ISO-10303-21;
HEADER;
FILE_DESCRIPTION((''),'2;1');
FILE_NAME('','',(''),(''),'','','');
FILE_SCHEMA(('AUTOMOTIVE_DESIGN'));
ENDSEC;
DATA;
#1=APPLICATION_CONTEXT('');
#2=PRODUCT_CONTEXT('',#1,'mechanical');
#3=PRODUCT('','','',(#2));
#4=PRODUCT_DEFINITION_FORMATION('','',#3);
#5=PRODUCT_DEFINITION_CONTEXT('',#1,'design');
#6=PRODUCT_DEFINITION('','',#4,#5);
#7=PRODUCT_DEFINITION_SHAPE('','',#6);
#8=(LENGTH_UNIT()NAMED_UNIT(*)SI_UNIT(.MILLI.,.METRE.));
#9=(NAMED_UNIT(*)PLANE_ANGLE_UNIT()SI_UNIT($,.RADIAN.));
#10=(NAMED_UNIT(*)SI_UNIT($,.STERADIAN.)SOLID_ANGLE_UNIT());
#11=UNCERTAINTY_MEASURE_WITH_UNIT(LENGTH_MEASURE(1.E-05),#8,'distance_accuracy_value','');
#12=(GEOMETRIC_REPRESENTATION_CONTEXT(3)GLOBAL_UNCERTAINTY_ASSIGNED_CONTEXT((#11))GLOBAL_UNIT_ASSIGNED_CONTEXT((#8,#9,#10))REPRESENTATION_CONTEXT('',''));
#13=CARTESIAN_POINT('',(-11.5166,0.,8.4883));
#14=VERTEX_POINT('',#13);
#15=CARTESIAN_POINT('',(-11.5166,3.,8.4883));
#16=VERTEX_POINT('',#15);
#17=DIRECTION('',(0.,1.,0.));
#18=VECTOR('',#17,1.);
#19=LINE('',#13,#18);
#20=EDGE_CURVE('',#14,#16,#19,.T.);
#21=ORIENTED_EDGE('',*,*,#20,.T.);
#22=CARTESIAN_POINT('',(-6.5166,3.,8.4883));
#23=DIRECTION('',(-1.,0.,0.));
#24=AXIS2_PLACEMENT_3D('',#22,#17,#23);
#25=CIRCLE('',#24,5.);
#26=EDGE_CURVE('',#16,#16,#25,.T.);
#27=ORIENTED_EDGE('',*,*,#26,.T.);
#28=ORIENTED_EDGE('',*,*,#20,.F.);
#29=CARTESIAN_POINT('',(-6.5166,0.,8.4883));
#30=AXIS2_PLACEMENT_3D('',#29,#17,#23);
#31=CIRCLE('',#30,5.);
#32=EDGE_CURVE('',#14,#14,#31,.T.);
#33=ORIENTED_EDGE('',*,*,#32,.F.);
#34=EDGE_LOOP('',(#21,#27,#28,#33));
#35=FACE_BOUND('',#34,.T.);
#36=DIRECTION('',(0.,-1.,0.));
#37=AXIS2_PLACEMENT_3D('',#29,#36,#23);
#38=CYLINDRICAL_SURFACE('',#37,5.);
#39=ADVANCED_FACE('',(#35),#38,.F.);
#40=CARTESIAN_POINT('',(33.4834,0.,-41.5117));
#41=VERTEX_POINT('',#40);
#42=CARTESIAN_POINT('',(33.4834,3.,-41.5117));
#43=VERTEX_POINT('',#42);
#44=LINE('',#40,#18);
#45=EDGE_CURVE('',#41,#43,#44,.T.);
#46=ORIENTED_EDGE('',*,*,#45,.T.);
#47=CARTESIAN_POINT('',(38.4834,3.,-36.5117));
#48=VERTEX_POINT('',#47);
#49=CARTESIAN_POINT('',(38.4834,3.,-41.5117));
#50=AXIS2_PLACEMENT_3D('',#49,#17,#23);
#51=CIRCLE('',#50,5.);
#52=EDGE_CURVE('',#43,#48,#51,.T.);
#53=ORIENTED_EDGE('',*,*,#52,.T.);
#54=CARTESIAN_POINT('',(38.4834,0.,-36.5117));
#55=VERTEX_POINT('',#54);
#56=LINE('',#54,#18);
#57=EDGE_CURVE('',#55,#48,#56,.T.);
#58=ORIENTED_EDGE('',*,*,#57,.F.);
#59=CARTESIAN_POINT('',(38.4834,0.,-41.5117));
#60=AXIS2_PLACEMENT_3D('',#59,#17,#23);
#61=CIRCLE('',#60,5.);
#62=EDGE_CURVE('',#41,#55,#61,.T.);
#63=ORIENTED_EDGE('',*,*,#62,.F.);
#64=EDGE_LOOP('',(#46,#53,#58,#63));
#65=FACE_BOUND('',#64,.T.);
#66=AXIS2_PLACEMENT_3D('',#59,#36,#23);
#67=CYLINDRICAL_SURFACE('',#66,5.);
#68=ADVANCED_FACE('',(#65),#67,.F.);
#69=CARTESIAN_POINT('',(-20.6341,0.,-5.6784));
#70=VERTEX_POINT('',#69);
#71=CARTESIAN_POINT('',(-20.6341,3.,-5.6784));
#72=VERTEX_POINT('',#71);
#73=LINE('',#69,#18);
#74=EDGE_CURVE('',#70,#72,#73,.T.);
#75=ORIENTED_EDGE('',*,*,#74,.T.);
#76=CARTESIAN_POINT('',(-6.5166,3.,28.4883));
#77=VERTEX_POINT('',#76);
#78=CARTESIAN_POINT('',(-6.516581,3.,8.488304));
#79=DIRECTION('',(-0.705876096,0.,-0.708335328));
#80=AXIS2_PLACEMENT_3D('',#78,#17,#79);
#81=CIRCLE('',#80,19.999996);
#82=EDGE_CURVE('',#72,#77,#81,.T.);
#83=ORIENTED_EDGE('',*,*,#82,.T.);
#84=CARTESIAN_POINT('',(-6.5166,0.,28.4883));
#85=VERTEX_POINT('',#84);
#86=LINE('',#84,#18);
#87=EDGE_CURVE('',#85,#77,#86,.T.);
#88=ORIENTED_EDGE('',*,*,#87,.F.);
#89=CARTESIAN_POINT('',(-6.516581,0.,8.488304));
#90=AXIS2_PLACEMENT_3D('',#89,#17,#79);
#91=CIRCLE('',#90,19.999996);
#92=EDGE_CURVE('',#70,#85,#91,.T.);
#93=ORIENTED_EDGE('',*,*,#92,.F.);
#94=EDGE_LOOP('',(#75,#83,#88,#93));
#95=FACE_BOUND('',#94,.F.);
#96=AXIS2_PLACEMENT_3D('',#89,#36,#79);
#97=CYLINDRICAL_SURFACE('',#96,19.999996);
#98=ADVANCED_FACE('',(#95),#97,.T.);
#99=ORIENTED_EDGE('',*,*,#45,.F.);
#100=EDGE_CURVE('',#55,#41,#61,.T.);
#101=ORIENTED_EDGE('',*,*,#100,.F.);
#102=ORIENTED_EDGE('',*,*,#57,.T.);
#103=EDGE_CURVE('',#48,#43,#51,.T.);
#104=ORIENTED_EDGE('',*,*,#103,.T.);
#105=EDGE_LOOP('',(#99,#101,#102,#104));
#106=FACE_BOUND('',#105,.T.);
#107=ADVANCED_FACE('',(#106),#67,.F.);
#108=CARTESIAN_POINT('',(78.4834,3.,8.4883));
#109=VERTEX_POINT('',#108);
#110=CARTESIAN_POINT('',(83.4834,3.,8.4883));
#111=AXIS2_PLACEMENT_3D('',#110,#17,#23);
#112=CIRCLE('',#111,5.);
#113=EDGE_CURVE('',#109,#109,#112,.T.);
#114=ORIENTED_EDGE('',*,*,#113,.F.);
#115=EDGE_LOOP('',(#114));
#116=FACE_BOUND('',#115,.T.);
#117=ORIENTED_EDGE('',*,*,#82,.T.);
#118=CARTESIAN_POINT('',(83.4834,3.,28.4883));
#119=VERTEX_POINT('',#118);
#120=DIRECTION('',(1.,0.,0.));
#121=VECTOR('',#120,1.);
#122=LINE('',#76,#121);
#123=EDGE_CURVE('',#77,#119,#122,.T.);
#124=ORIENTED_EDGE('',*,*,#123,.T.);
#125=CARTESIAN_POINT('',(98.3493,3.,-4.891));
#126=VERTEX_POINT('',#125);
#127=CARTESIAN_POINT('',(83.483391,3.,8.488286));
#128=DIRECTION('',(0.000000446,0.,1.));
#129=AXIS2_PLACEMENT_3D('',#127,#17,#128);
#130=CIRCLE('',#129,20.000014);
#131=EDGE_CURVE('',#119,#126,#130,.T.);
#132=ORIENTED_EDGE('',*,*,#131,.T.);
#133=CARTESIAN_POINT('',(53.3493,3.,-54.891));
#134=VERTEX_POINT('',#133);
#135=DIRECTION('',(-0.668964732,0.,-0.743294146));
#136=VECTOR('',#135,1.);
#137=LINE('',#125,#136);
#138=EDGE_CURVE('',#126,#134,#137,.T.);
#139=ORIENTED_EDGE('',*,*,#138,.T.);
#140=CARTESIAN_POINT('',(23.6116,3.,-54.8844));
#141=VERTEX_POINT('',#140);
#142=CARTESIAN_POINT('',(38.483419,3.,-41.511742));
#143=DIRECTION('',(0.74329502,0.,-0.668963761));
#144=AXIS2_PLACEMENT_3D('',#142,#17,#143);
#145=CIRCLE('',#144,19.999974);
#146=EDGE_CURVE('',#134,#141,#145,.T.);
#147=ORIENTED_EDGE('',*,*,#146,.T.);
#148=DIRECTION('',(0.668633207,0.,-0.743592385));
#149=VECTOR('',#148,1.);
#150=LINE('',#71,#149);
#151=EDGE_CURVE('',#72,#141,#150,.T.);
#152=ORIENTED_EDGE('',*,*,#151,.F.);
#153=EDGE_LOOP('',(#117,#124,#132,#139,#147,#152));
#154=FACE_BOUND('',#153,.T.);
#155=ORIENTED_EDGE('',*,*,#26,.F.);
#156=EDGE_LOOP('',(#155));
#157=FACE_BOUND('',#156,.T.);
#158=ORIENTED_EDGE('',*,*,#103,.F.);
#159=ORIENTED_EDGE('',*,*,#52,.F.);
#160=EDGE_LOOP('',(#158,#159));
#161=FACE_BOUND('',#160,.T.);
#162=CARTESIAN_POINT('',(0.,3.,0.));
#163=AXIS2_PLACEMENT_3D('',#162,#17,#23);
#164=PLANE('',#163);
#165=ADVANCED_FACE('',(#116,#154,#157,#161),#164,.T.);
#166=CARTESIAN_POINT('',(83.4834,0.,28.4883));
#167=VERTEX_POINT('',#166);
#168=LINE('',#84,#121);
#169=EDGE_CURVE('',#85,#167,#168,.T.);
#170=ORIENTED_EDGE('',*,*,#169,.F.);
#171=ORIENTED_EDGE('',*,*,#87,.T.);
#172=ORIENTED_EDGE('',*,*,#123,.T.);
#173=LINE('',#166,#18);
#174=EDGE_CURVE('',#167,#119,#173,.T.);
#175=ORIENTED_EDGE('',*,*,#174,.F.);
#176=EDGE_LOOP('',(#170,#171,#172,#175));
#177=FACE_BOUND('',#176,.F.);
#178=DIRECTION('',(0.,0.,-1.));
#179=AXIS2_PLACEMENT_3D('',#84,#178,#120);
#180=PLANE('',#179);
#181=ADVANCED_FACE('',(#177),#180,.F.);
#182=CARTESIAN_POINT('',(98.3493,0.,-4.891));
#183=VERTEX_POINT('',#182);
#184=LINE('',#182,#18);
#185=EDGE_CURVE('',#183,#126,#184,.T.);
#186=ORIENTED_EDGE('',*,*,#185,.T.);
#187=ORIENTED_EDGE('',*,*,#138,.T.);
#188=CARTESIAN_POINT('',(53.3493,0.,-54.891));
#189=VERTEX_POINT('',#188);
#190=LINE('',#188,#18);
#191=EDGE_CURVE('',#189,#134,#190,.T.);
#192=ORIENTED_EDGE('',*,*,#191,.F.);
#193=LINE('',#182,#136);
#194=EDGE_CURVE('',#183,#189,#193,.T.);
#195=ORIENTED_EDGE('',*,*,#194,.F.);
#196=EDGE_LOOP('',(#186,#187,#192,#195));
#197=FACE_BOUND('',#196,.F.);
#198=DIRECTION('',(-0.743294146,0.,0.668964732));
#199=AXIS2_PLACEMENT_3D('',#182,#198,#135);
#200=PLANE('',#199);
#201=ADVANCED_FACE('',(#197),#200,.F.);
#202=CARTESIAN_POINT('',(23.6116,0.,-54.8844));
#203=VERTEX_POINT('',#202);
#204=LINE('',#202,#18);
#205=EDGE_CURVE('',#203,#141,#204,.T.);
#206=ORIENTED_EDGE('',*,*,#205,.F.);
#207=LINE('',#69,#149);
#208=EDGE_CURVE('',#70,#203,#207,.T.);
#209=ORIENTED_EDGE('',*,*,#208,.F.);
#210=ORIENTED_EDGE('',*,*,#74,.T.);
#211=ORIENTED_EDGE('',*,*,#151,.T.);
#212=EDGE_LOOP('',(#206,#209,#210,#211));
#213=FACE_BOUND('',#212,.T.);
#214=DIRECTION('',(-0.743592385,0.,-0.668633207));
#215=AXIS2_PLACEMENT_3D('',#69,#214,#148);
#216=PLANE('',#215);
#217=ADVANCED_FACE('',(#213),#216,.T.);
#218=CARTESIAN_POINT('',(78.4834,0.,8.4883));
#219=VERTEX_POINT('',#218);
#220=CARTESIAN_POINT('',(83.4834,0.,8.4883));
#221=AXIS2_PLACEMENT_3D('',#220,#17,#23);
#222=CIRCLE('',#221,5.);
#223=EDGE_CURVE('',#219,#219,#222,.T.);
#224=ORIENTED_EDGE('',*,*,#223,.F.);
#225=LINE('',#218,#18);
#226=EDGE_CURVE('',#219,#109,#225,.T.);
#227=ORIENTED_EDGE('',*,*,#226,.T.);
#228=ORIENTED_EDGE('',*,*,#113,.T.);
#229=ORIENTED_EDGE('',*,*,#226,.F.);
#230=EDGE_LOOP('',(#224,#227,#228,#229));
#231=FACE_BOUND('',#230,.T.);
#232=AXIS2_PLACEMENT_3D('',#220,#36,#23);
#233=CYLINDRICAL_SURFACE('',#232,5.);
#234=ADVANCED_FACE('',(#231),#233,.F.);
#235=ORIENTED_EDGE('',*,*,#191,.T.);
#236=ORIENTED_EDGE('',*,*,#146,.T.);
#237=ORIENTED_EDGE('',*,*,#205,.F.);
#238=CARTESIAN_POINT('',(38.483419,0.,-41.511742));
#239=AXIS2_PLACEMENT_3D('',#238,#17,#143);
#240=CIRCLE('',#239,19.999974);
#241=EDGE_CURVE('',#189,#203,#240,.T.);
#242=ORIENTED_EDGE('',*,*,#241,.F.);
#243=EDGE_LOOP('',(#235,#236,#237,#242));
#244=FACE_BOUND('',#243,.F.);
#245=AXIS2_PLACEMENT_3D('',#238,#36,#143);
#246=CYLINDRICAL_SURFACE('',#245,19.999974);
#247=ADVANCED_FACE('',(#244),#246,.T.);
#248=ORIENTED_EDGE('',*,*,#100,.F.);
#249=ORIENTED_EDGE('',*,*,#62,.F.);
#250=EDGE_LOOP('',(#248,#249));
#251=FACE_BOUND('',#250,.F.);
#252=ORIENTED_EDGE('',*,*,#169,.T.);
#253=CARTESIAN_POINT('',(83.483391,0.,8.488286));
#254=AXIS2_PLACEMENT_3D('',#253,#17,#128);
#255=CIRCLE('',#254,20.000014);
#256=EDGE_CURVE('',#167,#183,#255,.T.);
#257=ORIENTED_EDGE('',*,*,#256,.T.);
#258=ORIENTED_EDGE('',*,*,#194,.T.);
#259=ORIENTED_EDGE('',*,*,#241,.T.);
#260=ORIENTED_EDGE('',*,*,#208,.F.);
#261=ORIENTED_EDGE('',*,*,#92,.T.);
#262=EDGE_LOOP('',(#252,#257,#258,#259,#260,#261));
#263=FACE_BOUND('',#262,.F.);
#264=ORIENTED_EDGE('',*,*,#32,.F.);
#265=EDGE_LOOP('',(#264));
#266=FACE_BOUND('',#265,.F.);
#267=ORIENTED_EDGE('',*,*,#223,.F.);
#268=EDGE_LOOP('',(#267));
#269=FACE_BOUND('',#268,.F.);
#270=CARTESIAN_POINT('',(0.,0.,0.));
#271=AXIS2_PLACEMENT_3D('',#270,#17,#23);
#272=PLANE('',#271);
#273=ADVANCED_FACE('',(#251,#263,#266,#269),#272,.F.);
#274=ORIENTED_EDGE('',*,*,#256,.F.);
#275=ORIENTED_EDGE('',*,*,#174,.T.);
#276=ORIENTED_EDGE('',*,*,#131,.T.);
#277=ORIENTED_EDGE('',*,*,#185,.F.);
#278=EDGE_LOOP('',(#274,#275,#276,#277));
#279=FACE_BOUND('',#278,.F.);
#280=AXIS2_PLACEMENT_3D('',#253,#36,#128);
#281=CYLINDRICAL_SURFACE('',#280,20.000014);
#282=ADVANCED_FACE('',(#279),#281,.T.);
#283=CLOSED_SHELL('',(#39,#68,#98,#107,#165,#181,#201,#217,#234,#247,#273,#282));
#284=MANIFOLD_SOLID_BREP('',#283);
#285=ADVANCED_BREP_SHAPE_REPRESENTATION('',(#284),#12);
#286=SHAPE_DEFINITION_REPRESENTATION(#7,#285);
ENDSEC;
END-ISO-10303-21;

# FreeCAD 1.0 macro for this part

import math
import FreeCAD as App
import Part
import Sketcher

V = App.Vector
Q = App.Units.Quantity

doc = App.newDocument("Part")
body = doc.addObject("PartDesign::Body", "Body")

# Sketch on XZ plane
sketch1 = body.newObject("Sketcher::SketchObject", "Sketch")
sketch1.AttachmentSupport = (doc.getObject("XZ_Plane"), [""])
sketch1.MapMode = "FlatFace"
sketch1.addGeometry(Part.LineSegment(V(24, -55, 0), V(-21, -6, 0)), False)
sketch1.addGeometry(Part.ArcOfCircle(Part.Circle(V(-7, 8, 0), V(0, 0, 1), 20), math.radians(90), math.radians(225)), False)
sketch1.addGeometry(Part.LineSegment(V(-7, 28, 0), V(83, 28, 0)), False)
sketch1.addGeometry(Part.ArcOfCircle(Part.Circle(V(83, 8, 0), V(0, 0, 1), 20), math.radians(-42), math.radians(90)), False)
sketch1.addGeometry(Part.LineSegment(V(98, -5, 0), V(53, -55, 0)), False)
sketch1.addGeometry(Part.ArcOfCircle(Part.Circle(V(38, -42, 0), V(0, 0, 1), 20), math.radians(-138), math.radians(-42)), False)
sketch1.addGeometry(Part.Circle(V(38, -42, 0), V(0, 0, 1), 5), False)
sketch1.addGeometry(Part.Circle(V(83, 8, 0), V(0, 0, 1), 5), False)
sketch1.addGeometry(Part.Circle(V(-7, 8, 0), V(0, 0, 1), 5), False)
sketch1.addConstraint(Sketcher.Constraint("Coincident", 0, 2, 1, 2))
sketch1.addConstraint(Sketcher.Constraint("Tangent", 1, 1, 2, 1))
sketch1.addConstraint(Sketcher.Constraint("Tangent", 2, 2, 3, 2))
sketch1.addConstraint(Sketcher.Constraint("Tangent", 3, 1, 4, 1))
sketch1.addConstraint(Sketcher.Constraint("Tangent", 4, 2, 5, 2))
sketch1.addConstraint(Sketcher.Constraint("Tangent", 5, 1, 0, 1))
sketch1.addConstraint(Sketcher.Constraint("Horizontal", 2))
sketch1.addConstraint(Sketcher.Constraint("Coincident", 6, 3, 5, 3))
sketch1.addConstraint(Sketcher.Constraint("Coincident", 7, 3, 3, 3))
sketch1.addConstraint(Sketcher.Constraint("Coincident", 8, 3, 1, 3))
sketch1.addConstraint(Sketcher.Constraint("Equal", 1, 3))
sketch1.addConstraint(Sketcher.Constraint("Equal", 3, 5))
sketch1.addConstraint(Sketcher.Constraint("Equal", 6, 7))
sketch1.addConstraint(Sketcher.Constraint("Equal", 7, 8))
sketch1.addConstraint(Sketcher.Constraint("Diameter", 6, Q("10 mm")))
sketch1.addConstraint(Sketcher.Constraint("Radius", 1, Q("20 mm")))
sketch1.addConstraint(Sketcher.Constraint("DistanceX", 2, 1, 2, 2, Q("90 mm")))
sketch1.addConstraint(Sketcher.Constraint("DistanceY", 5, 3, 1, 3, Q("50 mm")))
sketch1.addConstraint(Sketcher.Constraint("DistanceX", 1, 3, 5, 3, Q("45 mm")))
sketch1.addConstraint(Sketcher.Constraint("DistanceX", 0, 2, -1, 1, Q("20.634 mm")))
sketch1.addConstraint(Sketcher.Constraint("DistanceY", 3, 1, -1, 1, Q("4.891 mm")))
sketch1.addConstraint(Sketcher.Constraint("DistanceY", 5, 1, 0, 2, Q("49.206 mm")))
pad1 = body.newObject("PartDesign::Pad", "Pad")
pad1.Profile = sketch1
pad1.Length = 3
pad1.Reversed = True

doc.recompute()
